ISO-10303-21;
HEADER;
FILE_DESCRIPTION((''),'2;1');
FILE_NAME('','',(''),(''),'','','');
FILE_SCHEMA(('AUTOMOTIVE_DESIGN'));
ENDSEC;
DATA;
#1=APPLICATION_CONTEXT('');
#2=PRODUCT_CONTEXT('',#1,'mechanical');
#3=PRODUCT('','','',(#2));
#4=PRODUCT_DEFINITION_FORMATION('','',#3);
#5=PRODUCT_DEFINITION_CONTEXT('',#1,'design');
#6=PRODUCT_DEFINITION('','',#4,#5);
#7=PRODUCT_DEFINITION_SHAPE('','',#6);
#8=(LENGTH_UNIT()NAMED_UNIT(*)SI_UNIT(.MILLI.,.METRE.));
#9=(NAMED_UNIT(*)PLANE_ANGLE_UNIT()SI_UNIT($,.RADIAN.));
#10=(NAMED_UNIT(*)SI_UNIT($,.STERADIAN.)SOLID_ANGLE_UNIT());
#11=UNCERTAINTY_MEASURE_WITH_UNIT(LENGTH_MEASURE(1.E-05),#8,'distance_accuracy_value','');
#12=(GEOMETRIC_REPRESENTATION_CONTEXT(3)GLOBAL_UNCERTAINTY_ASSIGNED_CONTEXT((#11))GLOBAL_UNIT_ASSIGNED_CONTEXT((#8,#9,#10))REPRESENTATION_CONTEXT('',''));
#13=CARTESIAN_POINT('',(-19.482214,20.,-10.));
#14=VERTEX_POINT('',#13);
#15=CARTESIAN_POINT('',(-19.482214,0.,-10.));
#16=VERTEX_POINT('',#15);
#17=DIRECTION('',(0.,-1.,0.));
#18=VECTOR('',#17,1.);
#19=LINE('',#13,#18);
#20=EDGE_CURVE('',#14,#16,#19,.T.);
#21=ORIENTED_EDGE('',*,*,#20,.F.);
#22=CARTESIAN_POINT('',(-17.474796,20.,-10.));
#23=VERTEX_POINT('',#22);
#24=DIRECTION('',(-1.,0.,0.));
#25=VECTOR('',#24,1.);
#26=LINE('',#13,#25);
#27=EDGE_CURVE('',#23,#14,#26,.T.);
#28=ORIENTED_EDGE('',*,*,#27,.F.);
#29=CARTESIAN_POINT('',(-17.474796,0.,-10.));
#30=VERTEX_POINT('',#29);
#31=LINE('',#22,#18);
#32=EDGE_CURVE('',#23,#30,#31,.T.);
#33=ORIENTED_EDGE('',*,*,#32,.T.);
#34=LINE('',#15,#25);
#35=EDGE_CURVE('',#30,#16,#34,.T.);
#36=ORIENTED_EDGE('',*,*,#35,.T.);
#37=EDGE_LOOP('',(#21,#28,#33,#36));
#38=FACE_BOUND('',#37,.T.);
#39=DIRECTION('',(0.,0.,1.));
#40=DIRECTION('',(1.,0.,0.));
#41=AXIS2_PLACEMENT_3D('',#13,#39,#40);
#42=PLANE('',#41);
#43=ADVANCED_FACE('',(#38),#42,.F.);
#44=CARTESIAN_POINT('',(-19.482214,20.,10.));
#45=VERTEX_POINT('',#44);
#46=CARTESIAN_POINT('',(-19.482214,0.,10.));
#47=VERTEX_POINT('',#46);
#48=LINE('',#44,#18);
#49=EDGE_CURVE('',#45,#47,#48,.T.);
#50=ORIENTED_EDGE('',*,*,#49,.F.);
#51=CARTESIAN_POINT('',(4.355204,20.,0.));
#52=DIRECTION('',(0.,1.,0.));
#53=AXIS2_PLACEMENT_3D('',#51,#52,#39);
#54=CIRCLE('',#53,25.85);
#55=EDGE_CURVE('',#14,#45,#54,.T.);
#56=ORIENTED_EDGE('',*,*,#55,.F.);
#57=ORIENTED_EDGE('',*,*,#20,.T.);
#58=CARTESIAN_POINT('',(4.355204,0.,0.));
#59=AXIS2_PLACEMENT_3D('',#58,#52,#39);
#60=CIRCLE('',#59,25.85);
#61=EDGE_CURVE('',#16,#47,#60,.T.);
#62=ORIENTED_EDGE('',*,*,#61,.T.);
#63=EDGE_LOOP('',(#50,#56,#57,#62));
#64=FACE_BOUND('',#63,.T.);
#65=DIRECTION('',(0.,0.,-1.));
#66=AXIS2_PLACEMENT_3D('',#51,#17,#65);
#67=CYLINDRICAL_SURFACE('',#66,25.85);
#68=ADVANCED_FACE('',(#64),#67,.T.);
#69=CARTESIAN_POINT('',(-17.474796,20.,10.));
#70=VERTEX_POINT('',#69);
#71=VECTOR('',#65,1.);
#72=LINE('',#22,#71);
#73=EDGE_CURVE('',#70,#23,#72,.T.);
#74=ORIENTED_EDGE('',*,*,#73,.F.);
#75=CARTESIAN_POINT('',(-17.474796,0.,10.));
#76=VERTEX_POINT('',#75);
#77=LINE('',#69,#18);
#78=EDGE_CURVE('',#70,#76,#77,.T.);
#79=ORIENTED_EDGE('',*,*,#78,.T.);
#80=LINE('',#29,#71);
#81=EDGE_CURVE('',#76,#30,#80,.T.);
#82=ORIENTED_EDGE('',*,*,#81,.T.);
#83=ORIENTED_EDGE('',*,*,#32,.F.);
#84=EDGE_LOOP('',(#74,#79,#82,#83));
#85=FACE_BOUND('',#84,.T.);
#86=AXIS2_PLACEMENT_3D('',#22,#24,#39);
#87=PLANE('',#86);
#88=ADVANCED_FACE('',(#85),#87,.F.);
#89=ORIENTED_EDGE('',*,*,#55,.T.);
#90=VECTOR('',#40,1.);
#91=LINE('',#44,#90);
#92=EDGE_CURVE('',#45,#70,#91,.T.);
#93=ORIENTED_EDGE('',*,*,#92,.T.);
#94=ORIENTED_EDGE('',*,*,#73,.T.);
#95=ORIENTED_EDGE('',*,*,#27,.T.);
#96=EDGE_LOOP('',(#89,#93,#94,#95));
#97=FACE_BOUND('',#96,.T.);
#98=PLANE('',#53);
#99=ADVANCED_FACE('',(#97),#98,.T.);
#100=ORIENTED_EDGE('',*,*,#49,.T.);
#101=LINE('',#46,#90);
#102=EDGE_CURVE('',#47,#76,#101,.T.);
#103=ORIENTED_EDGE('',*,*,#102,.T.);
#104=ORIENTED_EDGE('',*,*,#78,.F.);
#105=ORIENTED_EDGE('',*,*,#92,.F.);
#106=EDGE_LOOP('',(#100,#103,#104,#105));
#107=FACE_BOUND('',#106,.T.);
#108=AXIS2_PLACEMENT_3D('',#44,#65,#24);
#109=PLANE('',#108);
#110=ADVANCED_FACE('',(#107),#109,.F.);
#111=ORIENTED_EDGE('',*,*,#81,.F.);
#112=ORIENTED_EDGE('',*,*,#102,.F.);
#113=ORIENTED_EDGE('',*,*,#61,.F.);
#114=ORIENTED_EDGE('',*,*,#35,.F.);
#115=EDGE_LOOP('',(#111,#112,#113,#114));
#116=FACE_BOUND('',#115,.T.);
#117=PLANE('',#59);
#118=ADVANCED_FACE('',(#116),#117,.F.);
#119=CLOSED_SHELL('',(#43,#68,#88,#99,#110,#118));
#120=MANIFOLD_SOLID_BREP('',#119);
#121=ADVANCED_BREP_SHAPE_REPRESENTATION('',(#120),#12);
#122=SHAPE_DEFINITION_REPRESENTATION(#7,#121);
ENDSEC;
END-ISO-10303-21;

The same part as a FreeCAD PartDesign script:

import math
import FreeCAD as App
import Part
import Sketcher
from FreeCAD import Vector

doc = App.newDocument("Part")
body = doc.addObject("PartDesign::Body", "Body")

sketch1 = doc.addObject("Sketcher::SketchObject", "Sketch")
body.addObject(sketch1)
sketch1.AttachmentSupport = (doc.XZ_Plane, [""])
sketch1.MapMode = "FlatFace"
sketch1.addGeometry(Part.LineSegment(Vector(-17.5, -10, 0), Vector(-19.5, -10, 0)), False)
sketch1.addGeometry(Part.ArcOfCircle(Part.Circle(Vector(4.4, 0, 0), Vector(0, 0, 1), 25.9), math.radians(157), math.radians(203)), False)
sketch1.addGeometry(Part.LineSegment(Vector(-19.5, 10, 0), Vector(-17.5, 10, 0)), False)
sketch1.addGeometry(Part.LineSegment(Vector(-17.5, 10, 0), Vector(-17.5, -10, 0)), False)
sketch1.addConstraint(Sketcher.Constraint("Coincident", 0, 2, 1, 2))
sketch1.addConstraint(Sketcher.Constraint("Coincident", 1, 1, 2, 1))
sketch1.addConstraint(Sketcher.Constraint("Coincident", 2, 2, 3, 1))
sketch1.addConstraint(Sketcher.Constraint("Coincident", 3, 2, 0, 1))
sketch1.addConstraint(Sketcher.Constraint("Horizontal", 0))
sketch1.addConstraint(Sketcher.Constraint("Horizontal", 2))
sketch1.addConstraint(Sketcher.Constraint("Vertical", 3))
sketch1.addConstraint(Sketcher.Constraint("Symmetric", 0, 2, 1, 1, -1))
sketch1.addConstraint(Sketcher.Constraint("DistanceY", 3, 2, 3, 1, 20.0))
sketch1.addConstraint(Sketcher.Constraint("Radius", 1, 25.85))
sketch1.addConstraint(Sketcher.Constraint("DistanceX", 2, 2, 1, 3, 21.83))
sketch1.addConstraint(Sketcher.Constraint("DistanceX", -1, 1, 1, 3, 4.355204))
pad1 = doc.addObject("PartDesign::Pad", "Pad")
body.addObject(pad1)
pad1.Profile = sketch1
pad1.Length = 20
pad1.Reversed = True

doc.recompute()
